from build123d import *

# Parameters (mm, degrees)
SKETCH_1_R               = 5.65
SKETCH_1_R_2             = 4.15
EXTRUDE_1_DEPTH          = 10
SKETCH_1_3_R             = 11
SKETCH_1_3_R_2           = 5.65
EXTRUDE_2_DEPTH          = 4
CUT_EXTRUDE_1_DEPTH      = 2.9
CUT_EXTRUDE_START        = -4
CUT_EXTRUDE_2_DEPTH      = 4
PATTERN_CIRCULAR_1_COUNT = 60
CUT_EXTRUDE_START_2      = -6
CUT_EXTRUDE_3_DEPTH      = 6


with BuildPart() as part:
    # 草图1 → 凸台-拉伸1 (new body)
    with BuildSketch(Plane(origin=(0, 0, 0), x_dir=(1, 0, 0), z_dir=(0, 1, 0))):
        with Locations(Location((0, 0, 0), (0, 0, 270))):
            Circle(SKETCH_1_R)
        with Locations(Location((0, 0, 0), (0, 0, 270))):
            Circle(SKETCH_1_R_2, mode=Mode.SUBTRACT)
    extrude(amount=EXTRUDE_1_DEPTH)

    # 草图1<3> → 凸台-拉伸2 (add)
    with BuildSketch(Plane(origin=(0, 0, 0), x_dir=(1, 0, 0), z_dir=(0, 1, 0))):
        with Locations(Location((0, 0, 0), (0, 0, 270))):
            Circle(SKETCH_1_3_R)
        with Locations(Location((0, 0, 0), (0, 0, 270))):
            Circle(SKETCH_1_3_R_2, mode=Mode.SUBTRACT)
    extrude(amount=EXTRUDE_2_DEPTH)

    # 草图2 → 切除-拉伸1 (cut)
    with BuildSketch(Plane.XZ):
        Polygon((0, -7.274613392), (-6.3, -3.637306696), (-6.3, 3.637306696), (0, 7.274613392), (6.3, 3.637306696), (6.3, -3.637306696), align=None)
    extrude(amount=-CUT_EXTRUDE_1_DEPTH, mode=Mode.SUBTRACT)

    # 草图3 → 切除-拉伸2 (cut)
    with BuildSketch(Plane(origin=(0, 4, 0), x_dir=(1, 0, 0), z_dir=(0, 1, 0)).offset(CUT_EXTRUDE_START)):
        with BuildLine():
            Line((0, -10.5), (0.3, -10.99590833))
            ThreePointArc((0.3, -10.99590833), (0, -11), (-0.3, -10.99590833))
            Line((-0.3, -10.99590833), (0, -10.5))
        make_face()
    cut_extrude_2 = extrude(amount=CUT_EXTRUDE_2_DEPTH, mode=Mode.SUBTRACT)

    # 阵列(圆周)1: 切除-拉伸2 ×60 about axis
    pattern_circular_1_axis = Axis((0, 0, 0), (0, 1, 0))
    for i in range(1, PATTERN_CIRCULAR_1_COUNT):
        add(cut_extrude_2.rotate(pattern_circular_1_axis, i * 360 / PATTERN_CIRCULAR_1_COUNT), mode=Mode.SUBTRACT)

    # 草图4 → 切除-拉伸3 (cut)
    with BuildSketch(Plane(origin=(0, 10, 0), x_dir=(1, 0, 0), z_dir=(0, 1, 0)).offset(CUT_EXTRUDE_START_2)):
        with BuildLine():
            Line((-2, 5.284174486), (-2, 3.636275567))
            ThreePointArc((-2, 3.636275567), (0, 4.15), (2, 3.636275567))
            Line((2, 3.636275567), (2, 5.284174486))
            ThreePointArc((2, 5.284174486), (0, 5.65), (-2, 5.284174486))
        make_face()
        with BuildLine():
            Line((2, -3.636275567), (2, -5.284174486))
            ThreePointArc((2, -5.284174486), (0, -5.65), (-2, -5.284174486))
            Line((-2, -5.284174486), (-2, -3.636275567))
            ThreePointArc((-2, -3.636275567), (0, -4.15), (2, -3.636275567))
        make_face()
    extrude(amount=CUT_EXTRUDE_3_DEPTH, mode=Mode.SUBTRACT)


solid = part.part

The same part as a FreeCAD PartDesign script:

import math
import FreeCAD as App
import Part
import Sketcher
Q = App.Units.Quantity

doc = App.newDocument("Part")
params = doc.addObject("Spreadsheet::Sheet", "Params")
for row, (alias, value) in enumerate([
    ("sketch1_diameter", "11.3 mm"),
    ("sketch1_diameter2", "8.3 mm"),
    ("pad1_length", "10 mm"),
    ("sketch2_diameter", "22 mm"),
    ("sketch2_diameter2", "11.3 mm"),
    ("pad2_length", "4 mm"),
    ("pocket1_length", "2.9 mm"),
    ("sketch4_radius", "11 mm"),
    ("pocket2_length", "4 mm"),
    ("sketch5_radius", "4.15 mm"),
    ("sketch5_radius2", "5.65 mm"),
    ("pocket3_length", "6 mm"),
], start=1):
    params.set(f"A{row}", alias)
    params.set(f"B{row}", "=" + value)
    params.setAlias(f"B{row}", alias)

body = doc.addObject("PartDesign::Body", "Body")

# Sketch on XZ plane
sketch1 = body.newObject("Sketcher::SketchObject", "Sketch")
sketch1.AttachmentSupport = (doc.getObject("XZ_Plane"), [""])
sketch1.MapMode = "FlatFace"
sketch1.addGeometry([
    Part.Circle(App.Vector(0, 0, 0), App.Vector(0, 0, 1), 5.65),
    Part.Circle(App.Vector(0, 0, 0), App.Vector(0, 0, 1), 4.15),
], False)
sketch1.addConstraint([
    Sketcher.Constraint("Coincident", 0, 3, -1, 1),
    Sketcher.Constraint("Coincident", 1, 3, -1, 1),
    Sketcher.Constraint("Diameter", 0, Q("11.3 mm")),
    Sketcher.Constraint("Diameter", 1, Q("8.3 mm")),
])
sketch1.setExpression("Constraints[2]", "Params.sketch1_diameter")
sketch1.setExpression("Constraints[3]", "Params.sketch1_diameter2")
pad1 = body.newObject("PartDesign::Pad", "Pad")
pad1.Profile = sketch1
pad1.setExpression("Length", "Params.pad1_length")
pad1.Reversed = True

# Sketch on XZ plane
sketch2 = body.newObject("Sketcher::SketchObject", "Sketch001")
sketch2.AttachmentSupport = (doc.getObject("XZ_Plane"), [""])
sketch2.MapMode = "FlatFace"
sketch2.addGeometry([
    Part.Circle(App.Vector(0, 0, 0), App.Vector(0, 0, 1), 11),
    Part.Circle(App.Vector(0, 0, 0), App.Vector(0, 0, 1), 5.65),
], False)
sketch2.addConstraint([
    Sketcher.Constraint("Coincident", 0, 3, -1, 1),
    Sketcher.Constraint("Coincident", 1, 3, -1, 1),
    Sketcher.Constraint("Diameter", 0, Q("22 mm")),
    Sketcher.Constraint("Diameter", 1, Q("11.3 mm")),
])
sketch2.setExpression("Constraints[2]", "Params.sketch2_diameter")
sketch2.setExpression("Constraints[3]", "Params.sketch2_diameter2")
pad2 = body.newObject("PartDesign::Pad", "Pad001")
pad2.Profile = sketch2
pad2.setExpression("Length", "Params.pad2_length")
pad2.Reversed = True

# Sketch on XZ plane
sketch3 = body.newObject("Sketcher::SketchObject", "Sketch002")
sketch3.AttachmentSupport = (doc.getObject("XZ_Plane"), [""])
sketch3.MapMode = "FlatFace"
sketch3.addGeometry([
    Part.LineSegment(App.Vector(-6.3, -3.637307, 0), App.Vector(0, -7.274613, 0)),  # 0
    Part.LineSegment(App.Vector(0, -7.274613, 0), App.Vector(6.3, -3.637307, 0)),  # 1
    Part.LineSegment(App.Vector(6.3, -3.637307, 0), App.Vector(6.3, 3.637307, 0)),  # 2
    Part.LineSegment(App.Vector(6.3, 3.637307, 0), App.Vector(0, 7.274613, 0)),  # 3
    Part.LineSegment(App.Vector(0, 7.274613, 0), App.Vector(-6.3, 3.637307, 0)),  # 4
    Part.LineSegment(App.Vector(-6.3, 3.637307, 0), App.Vector(-6.3, -3.637307, 0)),  # 5
], False)
sketch3.addConstraint([
    Sketcher.Constraint("Coincident", 0, 2, 1, 1),
    Sketcher.Constraint("Coincident", 1, 2, 2, 1),
    Sketcher.Constraint("Coincident", 2, 2, 3, 1),
    Sketcher.Constraint("Coincident", 3, 2, 4, 1),
    Sketcher.Constraint("Coincident", 4, 2, 5, 1),
    Sketcher.Constraint("Coincident", 5, 2, 0, 1),
    Sketcher.Constraint("Vertical", 2),
    Sketcher.Constraint("Vertical", 5),
    Sketcher.Constraint("Symmetric", 0, 2, 3, 2, -1, 1),
    Sketcher.Constraint("Symmetric", 1, 2, 4, 2, -1, 1),
    Sketcher.Constraint("PointOnObject", 0, 2, -2),
    Sketcher.Constraint("Parallel", 0, 3),
    Sketcher.Constraint("Horizontal", 2, 2, 4, 2),
    Sketcher.Constraint("Angle", 0, Q("-30 deg")),
    Sketcher.Constraint("DistanceX", -1, 1, 1, 2, Q("6.3 mm")),
    Sketcher.Constraint("DistanceY", 2, 1, 2, 2, Q("7.274613 mm")),
])
pocket1 = body.newObject("PartDesign::Pocket", "Pocket")
pocket1.Profile = sketch3
pocket1.setExpression("Length", "Params.pocket1_length")

# Sketch on XZ plane
sketch4 = body.newObject("Sketcher::SketchObject", "Sketch003")
sketch4.AttachmentSupport = (doc.getObject("XZ_Plane"), [""])
sketch4.MapMode = "FlatFace"
sketch4.addGeometry([
    Part.LineSegment(App.Vector(0.3, 10.995908, 0), App.Vector(0, 10.5, 0)),
    Part.LineSegment(App.Vector(0, 10.5, 0), App.Vector(-0.3, 10.995908, 0)),
    Part.ArcOfCircle(Part.Circle(App.Vector(0, 0, 0), App.Vector(0, 0, 1), 11), math.radians(88.437194), math.radians(91.562806)),
], False)
sketch4.addConstraint([
    Sketcher.Constraint("Coincident", 0, 2, 1, 1),
    Sketcher.Constraint("Coincident", 1, 2, 2, 2),
    Sketcher.Constraint("Coincident", 2, 1, 0, 1),
    Sketcher.Constraint("Coincident", 2, 3, -1, 1),
    Sketcher.Constraint("PointOnObject", 0, 2, -2),
    Sketcher.Constraint("Horizontal", 1, 2, 2, 1),
    Sketcher.Constraint("Radius", 2, Q("11 mm")),
    Sketcher.Constraint("DistanceY", -1, 1, 0, 2, Q("10.5 mm")),
    Sketcher.Constraint("DistanceX", 1, 2, -1, 1, Q("0.3 mm")),
])
sketch4.setExpression("Constraints[6]", "Params.sketch4_radius")
pocket2 = body.newObject("PartDesign::Pocket", "Pocket001")
pocket2.Profile = sketch4
pocket2.setExpression("Length", "Params.pocket2_length")
doc.recompute()

polarpattern = body.newObject("PartDesign::PolarPattern", "PolarPattern")
polarpattern.Originals = [pocket2]
polarpattern.Axis = (doc.getObject("Y_Axis"), [""])
polarpattern.Angle = 360
polarpattern.Occurrences = 60
body.Tip = polarpattern

# Sketch on XZ plane
sketch5 = body.newObject("Sketcher::SketchObject", "Sketch004")
sketch5.AttachmentSupport = (doc.getObject("XZ_Plane"), [""])
sketch5.MapMode = "FlatFace"
sketch5.AttachmentOffset = App.Placement(App.Vector(0, 0, -4), App.Rotation())
sketch5.addGeometry([
    Part.LineSegment(App.Vector(-2, -5.284174, 0), App.Vector(-2, -3.636276, 0)),  # 0
    Part.ArcOfCircle(Part.Circle(App.Vector(0, 0, 0), App.Vector(0, 0, 1), 4.15), math.radians(-118.81138), math.radians(-61.18862)),  # 1
    Part.LineSegment(App.Vector(2, -3.636276, 0), App.Vector(2, -5.284174, 0)),  # 2
    Part.ArcOfCircle(Part.Circle(App.Vector(0, 0, 0), App.Vector(0, 0, 1), 5.65), math.radians(-110.731085), math.radians(-69.268915)),  # 3
    Part.LineSegment(App.Vector(2, 5.284174, 0), App.Vector(2, 3.636276, 0)),  # 4
    Part.ArcOfCircle(Part.Circle(App.Vector(0, 0, 0), App.Vector(0, 0, 1), 4.15), math.radians(61.18862), math.radians(118.81138)),  # 5
    Part.LineSegment(App.Vector(-2, 3.636276, 0), App.Vector(-2, 5.284174, 0)),  # 6
    Part.ArcOfCircle(Part.Circle(App.Vector(0, 0, 0), App.Vector(0, 0, 1), 5.65), math.radians(69.268915), math.radians(110.731085)),  # 7
], False)
sketch5.addConstraint([
    Sketcher.Constraint("Coincident", 0, 2, 1, 1),
    Sketcher.Constraint("Coincident", 1, 2, 2, 1),
    Sketcher.Constraint("Coincident", 2, 2, 3, 2),
    Sketcher.Constraint("Coincident", 3, 1, 0, 1),
    Sketcher.Constraint("Coincident", 4, 2, 5, 1),
    Sketcher.Constraint("Coincident", 5, 2, 6, 1),
    Sketcher.Constraint("Coincident", 6, 2, 7, 2),
    Sketcher.Constraint("Coincident", 7, 1, 4, 1),
    Sketcher.Constraint("Vertical", 0),
    Sketcher.Constraint("Vertical", 2),
    Sketcher.Constraint("Vertical", 4),
    Sketcher.Constraint("Vertical", 6),
    Sketcher.Constraint("Coincident", 1, 3, -1, 1),
    Sketcher.Constraint("Coincident", 3, 3, -1, 1),
    Sketcher.Constraint("Coincident", 5, 3, -1, 1),
    Sketcher.Constraint("Coincident", 7, 3, -1, 1),
    Sketcher.Constraint("Equal", 1, 5),
    Sketcher.Constraint("Equal", 3, 7),
    Sketcher.Constraint("Horizontal", 0, 2, 1, 2),
    Sketcher.Constraint("Horizontal", 4, 2, 5, 2),
    Sketcher.Constraint("Vertical", 2, 2, 4, 2),
    Sketcher.Constraint("Radius", 1, Q("4.15 mm")),
    Sketcher.Constraint("Radius", 3, Q("5.65 mm")),
    Sketcher.Constraint("DistanceX", 0, 2, -1, 1, Q("2 mm")),
])
sketch5.setExpression("Constraints[21]", "Params.sketch5_radius")
sketch5.setExpression("Constraints[22]", "Params.sketch5_radius2")
pocket3 = body.newObject("PartDesign::Pocket", "Pocket002")
pocket3.Profile = sketch5
pocket3.setExpression("Length", "Params.pocket3_length")

doc.recompute()
